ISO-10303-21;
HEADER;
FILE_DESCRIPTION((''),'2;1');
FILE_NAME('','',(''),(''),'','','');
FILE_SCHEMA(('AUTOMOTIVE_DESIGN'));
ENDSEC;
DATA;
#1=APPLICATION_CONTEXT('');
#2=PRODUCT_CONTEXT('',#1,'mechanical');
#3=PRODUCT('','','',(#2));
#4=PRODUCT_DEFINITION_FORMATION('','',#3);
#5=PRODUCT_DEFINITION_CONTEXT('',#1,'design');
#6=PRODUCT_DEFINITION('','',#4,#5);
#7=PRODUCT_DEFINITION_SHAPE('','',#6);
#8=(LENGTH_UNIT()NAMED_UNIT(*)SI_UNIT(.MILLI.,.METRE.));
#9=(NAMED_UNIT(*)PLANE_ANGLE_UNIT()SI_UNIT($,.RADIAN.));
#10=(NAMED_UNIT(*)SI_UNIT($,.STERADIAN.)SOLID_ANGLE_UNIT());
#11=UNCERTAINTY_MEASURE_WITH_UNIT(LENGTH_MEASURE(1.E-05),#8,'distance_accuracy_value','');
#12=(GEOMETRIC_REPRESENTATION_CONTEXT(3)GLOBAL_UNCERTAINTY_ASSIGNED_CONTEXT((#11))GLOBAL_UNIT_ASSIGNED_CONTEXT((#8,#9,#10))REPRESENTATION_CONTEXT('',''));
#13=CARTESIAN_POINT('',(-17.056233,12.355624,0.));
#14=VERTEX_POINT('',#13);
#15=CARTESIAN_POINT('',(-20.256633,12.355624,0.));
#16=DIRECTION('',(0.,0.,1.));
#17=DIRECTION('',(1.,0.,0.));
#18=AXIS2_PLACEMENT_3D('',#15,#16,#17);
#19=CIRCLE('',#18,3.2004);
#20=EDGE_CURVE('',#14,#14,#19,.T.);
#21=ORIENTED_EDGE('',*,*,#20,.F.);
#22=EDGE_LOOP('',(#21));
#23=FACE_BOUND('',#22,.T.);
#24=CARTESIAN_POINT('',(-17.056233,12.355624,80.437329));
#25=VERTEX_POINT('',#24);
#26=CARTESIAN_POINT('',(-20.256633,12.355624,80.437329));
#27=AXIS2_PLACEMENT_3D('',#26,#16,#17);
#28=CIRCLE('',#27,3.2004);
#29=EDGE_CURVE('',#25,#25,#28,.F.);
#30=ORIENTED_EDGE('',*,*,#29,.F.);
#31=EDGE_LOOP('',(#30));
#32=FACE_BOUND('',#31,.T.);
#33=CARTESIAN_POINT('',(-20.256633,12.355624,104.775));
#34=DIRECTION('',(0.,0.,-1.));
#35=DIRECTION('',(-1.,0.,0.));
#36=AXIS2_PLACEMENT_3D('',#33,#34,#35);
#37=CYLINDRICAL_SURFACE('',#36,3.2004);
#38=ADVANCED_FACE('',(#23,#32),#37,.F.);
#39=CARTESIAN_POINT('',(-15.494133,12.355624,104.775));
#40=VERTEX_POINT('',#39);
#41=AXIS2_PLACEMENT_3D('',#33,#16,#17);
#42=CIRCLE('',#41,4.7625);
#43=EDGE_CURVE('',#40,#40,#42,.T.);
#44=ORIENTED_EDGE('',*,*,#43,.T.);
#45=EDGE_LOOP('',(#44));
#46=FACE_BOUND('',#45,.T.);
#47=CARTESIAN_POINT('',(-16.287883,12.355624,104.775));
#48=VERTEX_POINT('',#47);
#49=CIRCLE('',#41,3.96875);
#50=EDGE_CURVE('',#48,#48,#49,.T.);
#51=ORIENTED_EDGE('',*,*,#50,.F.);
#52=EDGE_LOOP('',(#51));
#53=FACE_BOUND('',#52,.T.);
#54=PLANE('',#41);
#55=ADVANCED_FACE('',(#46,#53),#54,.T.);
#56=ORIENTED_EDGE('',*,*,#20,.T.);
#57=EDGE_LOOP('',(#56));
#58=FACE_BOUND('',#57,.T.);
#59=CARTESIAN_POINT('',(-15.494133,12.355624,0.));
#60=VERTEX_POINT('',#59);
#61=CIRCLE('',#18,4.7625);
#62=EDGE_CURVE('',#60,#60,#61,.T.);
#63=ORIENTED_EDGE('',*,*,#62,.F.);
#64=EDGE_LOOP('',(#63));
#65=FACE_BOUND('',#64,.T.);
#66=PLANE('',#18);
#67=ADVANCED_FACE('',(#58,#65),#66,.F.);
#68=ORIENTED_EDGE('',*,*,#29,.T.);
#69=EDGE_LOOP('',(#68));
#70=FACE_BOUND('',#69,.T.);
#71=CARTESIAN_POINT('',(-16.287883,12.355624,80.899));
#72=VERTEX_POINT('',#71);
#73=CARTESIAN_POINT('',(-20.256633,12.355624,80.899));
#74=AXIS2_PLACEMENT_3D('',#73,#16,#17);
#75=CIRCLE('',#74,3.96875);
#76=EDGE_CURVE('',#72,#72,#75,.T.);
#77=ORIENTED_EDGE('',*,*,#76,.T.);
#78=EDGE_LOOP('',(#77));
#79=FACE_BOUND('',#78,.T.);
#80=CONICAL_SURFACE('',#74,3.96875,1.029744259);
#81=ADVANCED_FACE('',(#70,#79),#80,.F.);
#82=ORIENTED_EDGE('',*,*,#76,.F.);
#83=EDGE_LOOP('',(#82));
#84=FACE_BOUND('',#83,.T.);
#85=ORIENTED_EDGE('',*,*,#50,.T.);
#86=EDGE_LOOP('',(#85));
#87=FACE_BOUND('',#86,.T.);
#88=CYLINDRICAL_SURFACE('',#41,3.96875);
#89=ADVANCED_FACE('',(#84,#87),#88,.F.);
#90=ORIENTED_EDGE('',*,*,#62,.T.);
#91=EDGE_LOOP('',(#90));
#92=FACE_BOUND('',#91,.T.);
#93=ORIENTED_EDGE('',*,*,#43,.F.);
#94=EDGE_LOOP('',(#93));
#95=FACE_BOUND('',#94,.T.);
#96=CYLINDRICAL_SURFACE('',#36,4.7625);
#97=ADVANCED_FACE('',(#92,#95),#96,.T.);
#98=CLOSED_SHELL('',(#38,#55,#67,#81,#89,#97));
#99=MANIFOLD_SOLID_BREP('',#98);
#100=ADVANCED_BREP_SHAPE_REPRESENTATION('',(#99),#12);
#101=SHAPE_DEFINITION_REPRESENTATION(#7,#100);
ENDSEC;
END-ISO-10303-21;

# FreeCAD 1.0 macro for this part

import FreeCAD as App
import Part
import Sketcher
from FreeCAD import Vector
Q = App.Units.Quantity

doc = App.newDocument("Part")
params = doc.addObject("Spreadsheet::Sheet", "Params")
for row, (alias, value) in enumerate([
    ("sketch1_diameter", "0.375 in"),
    ("sketch1_diameter2", "0.252 in"),
    ("pad1_length", "4.125 in"),
    ("sketch2_diameter", "0.3125 in"),
    ("hole_diameter", "0.3125 in"),
    ("hole_depth", "0.94 in"),
], start=1):
    params.set(f"A{row}", alias)
    params.set(f"B{row}", "=" + value)
    params.setAlias(f"B{row}", alias)

body = doc.addObject("PartDesign::Body", "Body")

# Sketch on XY plane
sketch1 = body.newObject("Sketcher::SketchObject", "Sketch")
sketch1.AttachmentSupport = (doc.getObject("XY_Plane"), [""])
sketch1.MapMode = "FlatFace"
sketch1.addGeometry(Part.Circle(Vector(-20.3, 12.4, 0), Vector(0, 0, 1), 4.8), False)
sketch1.addGeometry(Part.Circle(Vector(-20.3, 12.4, 0), Vector(0, 0, 1), 3.2), False)
sketch1.addConstraint(Sketcher.Constraint("Coincident", 1, 3, 0, 3))
sketch1.addConstraint(Sketcher.Constraint("Diameter", 0, Q("0.375 in")))
sketch1.addConstraint(Sketcher.Constraint("Diameter", 1, Q("0.252 in")))
sketch1.addConstraint(Sketcher.Constraint("DistanceX", 0, 3, -1, 1, 20.256633))
sketch1.addConstraint(Sketcher.Constraint("DistanceY", -1, 1, 0, 3, 12.355624))
sketch1.setExpression("Constraints[1]", "Params.sketch1_diameter")
sketch1.setExpression("Constraints[2]", "Params.sketch1_diameter2")
pad1 = body.newObject("PartDesign::Pad", "Pad")
pad1.Profile = sketch1
pad1.setExpression("Length", "Params.pad1_length")

# Sketch on XY plane
sketch2 = body.newObject("Sketcher::SketchObject", "Sketch001")
sketch2.AttachmentSupport = (doc.getObject("XY_Plane"), [""])
sketch2.MapMode = "FlatFace"
sketch2.AttachmentOffset = App.Placement(Vector(0, 0, 4.125 * 25.4), App.Rotation())
sketch2.addGeometry(Part.Circle(Vector(-20.3, 12.4, 0), Vector(0, 0, 1), 4), False)
sketch2.addConstraint(Sketcher.Constraint("Diameter", 0, Q("0.3125 in")))
sketch2.addConstraint(Sketcher.Constraint("DistanceX", 0, 3, -1, 1, 20.256633))
sketch2.addConstraint(Sketcher.Constraint("DistanceY", -1, 1, 0, 3, 12.355624))
sketch2.setExpression("Constraints[0]", "Params.sketch2_diameter")
doc.recompute()
hole = body.newObject("PartDesign::Hole", "Hole")
hole.Profile = sketch2
hole.ThreadType = "None"
hole.setExpression("Diameter", "Params.hole_diameter")
hole.DepthType = "Dimension"
hole.setExpression("Depth", "Params.hole_depth")
hole.DrillPoint = "Angled"
hole.DrillPointAngle = 118

doc.recompute()
